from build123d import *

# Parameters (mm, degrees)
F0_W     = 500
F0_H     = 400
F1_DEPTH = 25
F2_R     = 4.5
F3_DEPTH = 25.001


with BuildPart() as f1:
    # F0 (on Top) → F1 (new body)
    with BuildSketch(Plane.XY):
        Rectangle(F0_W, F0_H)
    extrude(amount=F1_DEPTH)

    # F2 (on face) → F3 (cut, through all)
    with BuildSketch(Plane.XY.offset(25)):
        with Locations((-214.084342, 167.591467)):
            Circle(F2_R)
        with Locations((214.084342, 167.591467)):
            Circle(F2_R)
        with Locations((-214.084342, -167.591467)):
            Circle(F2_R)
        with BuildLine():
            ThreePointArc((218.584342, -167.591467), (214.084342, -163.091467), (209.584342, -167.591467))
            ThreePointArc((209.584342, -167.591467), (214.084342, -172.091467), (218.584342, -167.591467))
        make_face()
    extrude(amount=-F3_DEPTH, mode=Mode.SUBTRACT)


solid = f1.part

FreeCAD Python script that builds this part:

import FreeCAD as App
import Part
import Sketcher


def add_polygon(sketch, points):
    """Adds a closed chain of lines whose ends are joined by coincident constraints."""
    first, n = sketch.GeometryCount, len(points)
    for a, b in zip(points, points[1:] + points[:1]):
        sketch.addGeometry(Part.LineSegment(App.Vector(*a, 0), App.Vector(*b, 0)), False)
    for i in range(n):
        sketch.addConstraint(Sketcher.Constraint("Coincident", first + i, 2, first + (i + 1) % n, 1))

doc = App.newDocument("Part")
params = doc.addObject("Spreadsheet::Sheet", "Params")
for row, (alias, value) in enumerate([
    ("sketch1_width", "500 mm"),
    ("sketch1_height", "400 mm"),
    ("pad1_length", "25 mm"),
    ("sketch2_diameter", "9 mm"),
], start=1):
    params.set(f"A{row}", alias)
    params.set(f"B{row}", "=" + value)
    params.setAlias(f"B{row}", alias)

body = doc.addObject("PartDesign::Body", "Body")

# Sketch on XY plane
sketch1 = doc.addObject("Sketcher::SketchObject", "Sketch")
body.addObject(sketch1)
sketch1.AttachmentSupport = (doc.XY_Plane, [""])
sketch1.MapMode = "FlatFace"
add_polygon(sketch1, [(-250, 200), (-250, -200), (250, -200), (250, 200)])  # lines 0-3
sketch1.addConstraint(Sketcher.Constraint("Vertical", 0))
sketch1.addConstraint(Sketcher.Constraint("Horizontal", 1))
sketch1.addConstraint(Sketcher.Constraint("Vertical", 2))
sketch1.addConstraint(Sketcher.Constraint("Horizontal", 3))
sketch1.addConstraint(Sketcher.Constraint("Symmetric", 0, 2, 2, 2, -1, 1))
sketch1.addConstraint(Sketcher.Constraint("DistanceX", 1, 1, 1, 2, 500.0))
sketch1.addConstraint(Sketcher.Constraint("DistanceY", 0, 2, 0, 1, 400.0))
sketch1.setExpression("Constraints[9]", "Params.sketch1_width")
sketch1.setExpression("Constraints[10]", "Params.sketch1_height")
pad1 = doc.addObject("PartDesign::Pad", "Pad")
body.addObject(pad1)
pad1.Profile = sketch1
pad1.setExpression("Length", "Params.pad1_length")

# Sketch on XY plane
sketch2 = doc.addObject("Sketcher::SketchObject", "Sketch001")
body.addObject(sketch2)
sketch2.AttachmentSupport = (doc.XY_Plane, [""])
sketch2.MapMode = "FlatFace"
sketch2.AttachmentOffset = App.Placement(App.Vector(0, 0, 25), App.Rotation())
sketch2.addGeometry(Part.Circle(App.Vector(-214.1, 167.6, 0), App.Vector(0, 0, 1), 4.5), False)
sketch2.addGeometry(Part.Circle(App.Vector(214.1, 167.6, 0), App.Vector(0, 0, 1), 4.5), False)
sketch2.addGeometry(Part.Circle(App.Vector(-214.1, -167.6, 0), App.Vector(0, 0, 1), 4.5), False)
sketch2.addGeometry(Part.Circle(App.Vector(214.1, -167.6, 0), App.Vector(0, 0, 1), 4.5), False)
sketch2.addConstraint(Sketcher.Constraint("Equal", 0, 1))
sketch2.addConstraint(Sketcher.Constraint("Equal", 1, 2))
sketch2.addConstraint(Sketcher.Constraint("Equal", 2, 3))
sketch2.addConstraint(Sketcher.Constraint("Symmetric", 1, 3, 2, 3, -1, 1))
sketch2.addConstraint(Sketcher.Constraint("Symmetric", 0, 3, 3, 3, -1, 1))
sketch2.addConstraint(Sketcher.Constraint("Symmetric", 0, 3, 1, 3, -2))
sketch2.addConstraint(Sketcher.Constraint("Diameter", 0, 9.0))
sketch2.addConstraint(Sketcher.Constraint("DistanceX", 0, 3, -1, 1, 214.084342))
sketch2.addConstraint(Sketcher.Constraint("DistanceY", -1, 1, 0, 3, 167.591467))
sketch2.setExpression("Constraints[6]", "Params.sketch2_diameter")
pocket1 = doc.addObject("PartDesign::Pocket", "Pocket")
body.addObject(pocket1)
pocket1.Profile = sketch2
pocket1.Type = "ThroughAll"

doc.recompute()
